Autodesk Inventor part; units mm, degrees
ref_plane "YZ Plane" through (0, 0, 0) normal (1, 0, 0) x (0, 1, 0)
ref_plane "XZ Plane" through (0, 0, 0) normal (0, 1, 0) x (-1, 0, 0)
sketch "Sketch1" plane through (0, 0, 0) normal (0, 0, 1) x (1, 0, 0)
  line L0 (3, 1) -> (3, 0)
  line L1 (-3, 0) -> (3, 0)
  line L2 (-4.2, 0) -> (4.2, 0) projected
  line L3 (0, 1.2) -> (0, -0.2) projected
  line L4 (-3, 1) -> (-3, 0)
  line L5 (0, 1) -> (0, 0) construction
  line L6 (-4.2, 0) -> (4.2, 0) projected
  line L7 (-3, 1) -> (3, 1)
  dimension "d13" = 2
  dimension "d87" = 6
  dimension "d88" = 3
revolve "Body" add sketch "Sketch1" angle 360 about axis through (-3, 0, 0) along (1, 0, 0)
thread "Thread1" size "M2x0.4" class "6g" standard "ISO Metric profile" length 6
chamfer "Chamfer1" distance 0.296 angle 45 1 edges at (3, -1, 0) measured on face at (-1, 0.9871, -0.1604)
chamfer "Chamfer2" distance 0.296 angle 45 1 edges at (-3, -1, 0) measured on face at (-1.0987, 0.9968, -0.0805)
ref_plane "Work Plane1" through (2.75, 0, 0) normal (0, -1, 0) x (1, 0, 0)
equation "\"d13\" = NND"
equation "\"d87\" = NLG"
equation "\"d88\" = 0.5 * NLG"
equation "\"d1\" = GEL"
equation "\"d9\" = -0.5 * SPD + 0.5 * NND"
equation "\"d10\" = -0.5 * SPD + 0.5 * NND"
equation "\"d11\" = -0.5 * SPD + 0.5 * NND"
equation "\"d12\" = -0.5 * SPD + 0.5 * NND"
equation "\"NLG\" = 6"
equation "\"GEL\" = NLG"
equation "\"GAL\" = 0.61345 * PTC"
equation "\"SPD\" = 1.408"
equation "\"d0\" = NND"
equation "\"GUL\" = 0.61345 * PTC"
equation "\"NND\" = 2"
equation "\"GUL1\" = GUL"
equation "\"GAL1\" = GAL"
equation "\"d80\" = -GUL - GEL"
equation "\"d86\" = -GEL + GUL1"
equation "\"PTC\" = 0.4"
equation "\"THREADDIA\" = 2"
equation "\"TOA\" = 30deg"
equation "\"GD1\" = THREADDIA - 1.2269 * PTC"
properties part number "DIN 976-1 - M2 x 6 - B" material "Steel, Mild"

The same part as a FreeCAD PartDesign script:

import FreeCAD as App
import Part
import Sketcher
Q = App.Units.Quantity


def edges_at(feature, points):
    """Names of the edges that pass closest to the given points."""
    edges = feature.Shape.Edges
    near = lambda p: min(range(len(edges)), key=lambda i: edges[i].distToShape(Part.Vertex(*p))[0])
    return sorted({f"Edge{near(p) + 1}" for p in points})

doc = App.newDocument("Part")
body = doc.addObject("PartDesign::Body", "Body")

sketch1 = doc.addObject("Sketcher::SketchObject", "Sketch")
body.addObject(sketch1)
sketch1.AttachmentSupport = (doc.XY_Plane, [""])
sketch1.MapMode = "FlatFace"
sketch1.addGeometry([
    Part.LineSegment(App.Vector(3, 0, 0), App.Vector(3, 1, 0)),
    Part.LineSegment(App.Vector(3, 1, 0), App.Vector(-3, 1, 0)),
    Part.LineSegment(App.Vector(-3, 1, 0), App.Vector(-3, 0, 0)),
    Part.LineSegment(App.Vector(-3, 0, 0), App.Vector(3, 0, 0)),
], False)
sketch1.addConstraint([
    Sketcher.Constraint("Coincident", 0, 2, 1, 1),
    Sketcher.Constraint("Coincident", 1, 2, 2, 1),
    Sketcher.Constraint("Coincident", 2, 2, 3, 1),
    Sketcher.Constraint("Coincident", 3, 2, 0, 1),
    Sketcher.Constraint("Vertical", 0),
    Sketcher.Constraint("Horizontal", 1),
    Sketcher.Constraint("Vertical", 2),
    Sketcher.Constraint("Horizontal", 3),
    Sketcher.Constraint("Symmetric", 2, 2, 3, 2, -1, 1),
    Sketcher.Constraint("DistanceX", 1, 2, 1, 1, Q("6 mm")),
    Sketcher.Constraint("DistanceY", 0, 1, 0, 2, Q("1 mm")),
])
revolution = doc.addObject("PartDesign::Revolution", "Revolution")
body.addObject(revolution)
revolution.Profile = sketch1
revolution.ReferenceAxis = (sketch1, ["H_Axis"])
revolution.Angle = 360
doc.recompute()

chamfer = doc.addObject("PartDesign::Chamfer", "Chamfer")
body.addObject(chamfer)
chamfer.Base = (revolution, edges_at(revolution, [(3, -1, 0)]))
chamfer.Size = 0.296
doc.recompute()

chamfer2 = doc.addObject("PartDesign::Chamfer", "Chamfer001")
body.addObject(chamfer2)
chamfer2.Base = (chamfer, edges_at(chamfer, [(-3, -1, 0)]))
chamfer2.Size = 0.296

doc.recompute()
